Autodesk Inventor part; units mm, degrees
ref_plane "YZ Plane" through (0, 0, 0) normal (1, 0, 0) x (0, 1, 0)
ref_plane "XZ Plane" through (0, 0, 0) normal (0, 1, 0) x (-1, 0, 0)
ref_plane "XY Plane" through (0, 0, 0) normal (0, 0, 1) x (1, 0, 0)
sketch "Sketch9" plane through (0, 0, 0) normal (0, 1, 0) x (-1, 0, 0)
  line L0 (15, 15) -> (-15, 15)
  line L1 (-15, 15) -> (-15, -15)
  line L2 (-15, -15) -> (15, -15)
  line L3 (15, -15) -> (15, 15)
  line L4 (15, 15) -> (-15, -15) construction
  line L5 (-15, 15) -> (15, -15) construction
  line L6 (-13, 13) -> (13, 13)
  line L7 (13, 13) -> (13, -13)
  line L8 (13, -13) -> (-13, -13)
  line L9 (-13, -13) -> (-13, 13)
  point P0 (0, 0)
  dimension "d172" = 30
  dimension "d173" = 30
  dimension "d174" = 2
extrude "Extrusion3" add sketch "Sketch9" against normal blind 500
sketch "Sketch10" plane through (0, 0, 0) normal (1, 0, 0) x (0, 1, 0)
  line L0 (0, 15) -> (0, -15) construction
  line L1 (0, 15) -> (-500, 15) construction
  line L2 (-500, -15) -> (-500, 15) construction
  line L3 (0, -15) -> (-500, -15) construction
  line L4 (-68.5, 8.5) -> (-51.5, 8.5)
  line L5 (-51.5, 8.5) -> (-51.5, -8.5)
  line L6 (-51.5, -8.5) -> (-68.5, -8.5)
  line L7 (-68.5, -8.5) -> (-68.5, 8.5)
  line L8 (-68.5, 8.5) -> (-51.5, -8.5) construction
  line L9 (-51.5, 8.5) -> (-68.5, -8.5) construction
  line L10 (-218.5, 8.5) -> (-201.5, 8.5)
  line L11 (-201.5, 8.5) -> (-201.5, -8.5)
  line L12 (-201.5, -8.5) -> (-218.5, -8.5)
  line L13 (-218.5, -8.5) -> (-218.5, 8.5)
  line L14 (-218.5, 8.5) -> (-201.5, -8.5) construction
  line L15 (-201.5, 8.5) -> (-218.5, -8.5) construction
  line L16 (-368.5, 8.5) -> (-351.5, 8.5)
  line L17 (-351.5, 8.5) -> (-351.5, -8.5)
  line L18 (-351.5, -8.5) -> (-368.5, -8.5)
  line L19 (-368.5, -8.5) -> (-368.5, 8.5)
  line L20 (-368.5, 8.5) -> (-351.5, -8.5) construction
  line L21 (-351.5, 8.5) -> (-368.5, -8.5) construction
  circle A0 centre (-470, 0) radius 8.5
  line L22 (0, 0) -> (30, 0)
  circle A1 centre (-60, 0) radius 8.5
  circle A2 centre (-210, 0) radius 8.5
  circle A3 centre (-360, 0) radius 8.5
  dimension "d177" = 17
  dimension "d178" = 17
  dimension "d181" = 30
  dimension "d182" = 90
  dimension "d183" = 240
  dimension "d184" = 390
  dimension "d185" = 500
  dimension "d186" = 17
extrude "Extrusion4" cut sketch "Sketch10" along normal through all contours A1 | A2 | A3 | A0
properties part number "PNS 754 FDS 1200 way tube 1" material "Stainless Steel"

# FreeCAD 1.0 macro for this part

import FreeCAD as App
import Part
import Sketcher
from FreeCAD import Vector


def add_polygon(sketch, points):
    """Adds a closed chain of lines whose ends are joined by coincident constraints."""
    first, n = sketch.GeometryCount, len(points)
    for a, b in zip(points, points[1:] + points[:1]):
        sketch.addGeometry(Part.LineSegment(App.Vector(*a, 0), App.Vector(*b, 0)), False)
    for i in range(n):
        sketch.addConstraint(Sketcher.Constraint("Coincident", first + i, 2, first + (i + 1) % n, 1))

doc = App.newDocument("Part")
params = doc.addObject("Spreadsheet::Sheet", "Params")
for row, (alias, value) in enumerate([
    ("sketch1_width", "30 mm"),
    ("pad1_length", "500 mm"),
    ("sketch2_diameter", "17 mm"),
], start=1):
    params.set(f"A{row}", alias)
    params.set(f"B{row}", "=" + value)
    params.setAlias(f"B{row}", alias)

body = doc.addObject("PartDesign::Body", "Body")

# Sketch on XZ plane
sketch1 = body.newObject("Sketcher::SketchObject", "Sketch")
sketch1.AttachmentSupport = (doc.getObject("XZ_Plane"), [""])
sketch1.MapMode = "FlatFace"
add_polygon(sketch1, [(-15, -15), (-15, 15), (15, 15), (15, -15)])  # lines 0-3
add_polygon(sketch1, [(13, -13), (13, 13), (-13, 13), (-13, -13)])  # lines 4-7
sketch1.addConstraint(Sketcher.Constraint("Vertical", 0))
sketch1.addConstraint(Sketcher.Constraint("Horizontal", 1))
sketch1.addConstraint(Sketcher.Constraint("Vertical", 2))
sketch1.addConstraint(Sketcher.Constraint("Horizontal", 3))
sketch1.addConstraint(Sketcher.Constraint("Vertical", 4))
sketch1.addConstraint(Sketcher.Constraint("Horizontal", 5))
sketch1.addConstraint(Sketcher.Constraint("Vertical", 6))
sketch1.addConstraint(Sketcher.Constraint("Horizontal", 7))
sketch1.addConstraint(Sketcher.Constraint("Symmetric", 0, 2, 2, 2, -1, 1))
sketch1.addConstraint(Sketcher.Constraint("Symmetric", 4, 2, 6, 2, -1, 1))
sketch1.addConstraint(Sketcher.Constraint("Equal", 3, 0))
sketch1.addConstraint(Sketcher.Constraint("Equal", 7, 4))
sketch1.addConstraint(Sketcher.Constraint("DistanceX", 1, 1, 1, 2, 30.0))
sketch1.addConstraint(Sketcher.Constraint("DistanceX", 4, 2, 1, 2, 2.0))
sketch1.setExpression("Constraints[20]", "Params.sketch1_width")
pad1 = body.newObject("PartDesign::Pad", "Pad")
pad1.Profile = sketch1
pad1.setExpression("Length", "Params.pad1_length")

# Sketch on YZ plane
sketch2 = body.newObject("Sketcher::SketchObject", "Sketch001")
sketch2.AttachmentSupport = (doc.getObject("YZ_Plane"), [""])
sketch2.MapMode = "FlatFace"
sketch2.addGeometry(Part.Circle(Vector(-60, 0, 0), Vector(0, 0, 1), 8), False)
sketch2.addGeometry(Part.Circle(Vector(-210, 0, 0), Vector(0, 0, 1), 8), False)
sketch2.addGeometry(Part.Circle(Vector(-360, 0, 0), Vector(0, 0, 1), 8), False)
sketch2.addGeometry(Part.Circle(Vector(-470, 0, 0), Vector(0, 0, 1), 8), False)
sketch2.addConstraint(Sketcher.Constraint("Equal", 0, 1))
sketch2.addConstraint(Sketcher.Constraint("Equal", 1, 2))
sketch2.addConstraint(Sketcher.Constraint("Equal", 2, 3))
sketch2.addConstraint(Sketcher.Constraint("PointOnObject", 0, 3, -1))
sketch2.addConstraint(Sketcher.Constraint("PointOnObject", 1, 3, -1))
sketch2.addConstraint(Sketcher.Constraint("PointOnObject", 2, 3, -1))
sketch2.addConstraint(Sketcher.Constraint("PointOnObject", 3, 3, -1))
sketch2.addConstraint(Sketcher.Constraint("Diameter", 0, 17.0))
sketch2.addConstraint(Sketcher.Constraint("DistanceX", 0, 3, -1, 1, 60.0))
sketch2.addConstraint(Sketcher.Constraint("DistanceX", 1, 3, -1, 1, 210.0))
sketch2.addConstraint(Sketcher.Constraint("DistanceX", 2, 3, -1, 1, 360.0))
sketch2.addConstraint(Sketcher.Constraint("DistanceX", 3, 3, -1, 1, 470.0))
sketch2.setExpression("Constraints[7]", "Params.sketch2_diameter")
pocket1 = body.newObject("PartDesign::Pocket", "Pocket")
pocket1.Profile = sketch2
pocket1.Type = "ThroughAll"
pocket1.Reversed = True

doc.recompute()
